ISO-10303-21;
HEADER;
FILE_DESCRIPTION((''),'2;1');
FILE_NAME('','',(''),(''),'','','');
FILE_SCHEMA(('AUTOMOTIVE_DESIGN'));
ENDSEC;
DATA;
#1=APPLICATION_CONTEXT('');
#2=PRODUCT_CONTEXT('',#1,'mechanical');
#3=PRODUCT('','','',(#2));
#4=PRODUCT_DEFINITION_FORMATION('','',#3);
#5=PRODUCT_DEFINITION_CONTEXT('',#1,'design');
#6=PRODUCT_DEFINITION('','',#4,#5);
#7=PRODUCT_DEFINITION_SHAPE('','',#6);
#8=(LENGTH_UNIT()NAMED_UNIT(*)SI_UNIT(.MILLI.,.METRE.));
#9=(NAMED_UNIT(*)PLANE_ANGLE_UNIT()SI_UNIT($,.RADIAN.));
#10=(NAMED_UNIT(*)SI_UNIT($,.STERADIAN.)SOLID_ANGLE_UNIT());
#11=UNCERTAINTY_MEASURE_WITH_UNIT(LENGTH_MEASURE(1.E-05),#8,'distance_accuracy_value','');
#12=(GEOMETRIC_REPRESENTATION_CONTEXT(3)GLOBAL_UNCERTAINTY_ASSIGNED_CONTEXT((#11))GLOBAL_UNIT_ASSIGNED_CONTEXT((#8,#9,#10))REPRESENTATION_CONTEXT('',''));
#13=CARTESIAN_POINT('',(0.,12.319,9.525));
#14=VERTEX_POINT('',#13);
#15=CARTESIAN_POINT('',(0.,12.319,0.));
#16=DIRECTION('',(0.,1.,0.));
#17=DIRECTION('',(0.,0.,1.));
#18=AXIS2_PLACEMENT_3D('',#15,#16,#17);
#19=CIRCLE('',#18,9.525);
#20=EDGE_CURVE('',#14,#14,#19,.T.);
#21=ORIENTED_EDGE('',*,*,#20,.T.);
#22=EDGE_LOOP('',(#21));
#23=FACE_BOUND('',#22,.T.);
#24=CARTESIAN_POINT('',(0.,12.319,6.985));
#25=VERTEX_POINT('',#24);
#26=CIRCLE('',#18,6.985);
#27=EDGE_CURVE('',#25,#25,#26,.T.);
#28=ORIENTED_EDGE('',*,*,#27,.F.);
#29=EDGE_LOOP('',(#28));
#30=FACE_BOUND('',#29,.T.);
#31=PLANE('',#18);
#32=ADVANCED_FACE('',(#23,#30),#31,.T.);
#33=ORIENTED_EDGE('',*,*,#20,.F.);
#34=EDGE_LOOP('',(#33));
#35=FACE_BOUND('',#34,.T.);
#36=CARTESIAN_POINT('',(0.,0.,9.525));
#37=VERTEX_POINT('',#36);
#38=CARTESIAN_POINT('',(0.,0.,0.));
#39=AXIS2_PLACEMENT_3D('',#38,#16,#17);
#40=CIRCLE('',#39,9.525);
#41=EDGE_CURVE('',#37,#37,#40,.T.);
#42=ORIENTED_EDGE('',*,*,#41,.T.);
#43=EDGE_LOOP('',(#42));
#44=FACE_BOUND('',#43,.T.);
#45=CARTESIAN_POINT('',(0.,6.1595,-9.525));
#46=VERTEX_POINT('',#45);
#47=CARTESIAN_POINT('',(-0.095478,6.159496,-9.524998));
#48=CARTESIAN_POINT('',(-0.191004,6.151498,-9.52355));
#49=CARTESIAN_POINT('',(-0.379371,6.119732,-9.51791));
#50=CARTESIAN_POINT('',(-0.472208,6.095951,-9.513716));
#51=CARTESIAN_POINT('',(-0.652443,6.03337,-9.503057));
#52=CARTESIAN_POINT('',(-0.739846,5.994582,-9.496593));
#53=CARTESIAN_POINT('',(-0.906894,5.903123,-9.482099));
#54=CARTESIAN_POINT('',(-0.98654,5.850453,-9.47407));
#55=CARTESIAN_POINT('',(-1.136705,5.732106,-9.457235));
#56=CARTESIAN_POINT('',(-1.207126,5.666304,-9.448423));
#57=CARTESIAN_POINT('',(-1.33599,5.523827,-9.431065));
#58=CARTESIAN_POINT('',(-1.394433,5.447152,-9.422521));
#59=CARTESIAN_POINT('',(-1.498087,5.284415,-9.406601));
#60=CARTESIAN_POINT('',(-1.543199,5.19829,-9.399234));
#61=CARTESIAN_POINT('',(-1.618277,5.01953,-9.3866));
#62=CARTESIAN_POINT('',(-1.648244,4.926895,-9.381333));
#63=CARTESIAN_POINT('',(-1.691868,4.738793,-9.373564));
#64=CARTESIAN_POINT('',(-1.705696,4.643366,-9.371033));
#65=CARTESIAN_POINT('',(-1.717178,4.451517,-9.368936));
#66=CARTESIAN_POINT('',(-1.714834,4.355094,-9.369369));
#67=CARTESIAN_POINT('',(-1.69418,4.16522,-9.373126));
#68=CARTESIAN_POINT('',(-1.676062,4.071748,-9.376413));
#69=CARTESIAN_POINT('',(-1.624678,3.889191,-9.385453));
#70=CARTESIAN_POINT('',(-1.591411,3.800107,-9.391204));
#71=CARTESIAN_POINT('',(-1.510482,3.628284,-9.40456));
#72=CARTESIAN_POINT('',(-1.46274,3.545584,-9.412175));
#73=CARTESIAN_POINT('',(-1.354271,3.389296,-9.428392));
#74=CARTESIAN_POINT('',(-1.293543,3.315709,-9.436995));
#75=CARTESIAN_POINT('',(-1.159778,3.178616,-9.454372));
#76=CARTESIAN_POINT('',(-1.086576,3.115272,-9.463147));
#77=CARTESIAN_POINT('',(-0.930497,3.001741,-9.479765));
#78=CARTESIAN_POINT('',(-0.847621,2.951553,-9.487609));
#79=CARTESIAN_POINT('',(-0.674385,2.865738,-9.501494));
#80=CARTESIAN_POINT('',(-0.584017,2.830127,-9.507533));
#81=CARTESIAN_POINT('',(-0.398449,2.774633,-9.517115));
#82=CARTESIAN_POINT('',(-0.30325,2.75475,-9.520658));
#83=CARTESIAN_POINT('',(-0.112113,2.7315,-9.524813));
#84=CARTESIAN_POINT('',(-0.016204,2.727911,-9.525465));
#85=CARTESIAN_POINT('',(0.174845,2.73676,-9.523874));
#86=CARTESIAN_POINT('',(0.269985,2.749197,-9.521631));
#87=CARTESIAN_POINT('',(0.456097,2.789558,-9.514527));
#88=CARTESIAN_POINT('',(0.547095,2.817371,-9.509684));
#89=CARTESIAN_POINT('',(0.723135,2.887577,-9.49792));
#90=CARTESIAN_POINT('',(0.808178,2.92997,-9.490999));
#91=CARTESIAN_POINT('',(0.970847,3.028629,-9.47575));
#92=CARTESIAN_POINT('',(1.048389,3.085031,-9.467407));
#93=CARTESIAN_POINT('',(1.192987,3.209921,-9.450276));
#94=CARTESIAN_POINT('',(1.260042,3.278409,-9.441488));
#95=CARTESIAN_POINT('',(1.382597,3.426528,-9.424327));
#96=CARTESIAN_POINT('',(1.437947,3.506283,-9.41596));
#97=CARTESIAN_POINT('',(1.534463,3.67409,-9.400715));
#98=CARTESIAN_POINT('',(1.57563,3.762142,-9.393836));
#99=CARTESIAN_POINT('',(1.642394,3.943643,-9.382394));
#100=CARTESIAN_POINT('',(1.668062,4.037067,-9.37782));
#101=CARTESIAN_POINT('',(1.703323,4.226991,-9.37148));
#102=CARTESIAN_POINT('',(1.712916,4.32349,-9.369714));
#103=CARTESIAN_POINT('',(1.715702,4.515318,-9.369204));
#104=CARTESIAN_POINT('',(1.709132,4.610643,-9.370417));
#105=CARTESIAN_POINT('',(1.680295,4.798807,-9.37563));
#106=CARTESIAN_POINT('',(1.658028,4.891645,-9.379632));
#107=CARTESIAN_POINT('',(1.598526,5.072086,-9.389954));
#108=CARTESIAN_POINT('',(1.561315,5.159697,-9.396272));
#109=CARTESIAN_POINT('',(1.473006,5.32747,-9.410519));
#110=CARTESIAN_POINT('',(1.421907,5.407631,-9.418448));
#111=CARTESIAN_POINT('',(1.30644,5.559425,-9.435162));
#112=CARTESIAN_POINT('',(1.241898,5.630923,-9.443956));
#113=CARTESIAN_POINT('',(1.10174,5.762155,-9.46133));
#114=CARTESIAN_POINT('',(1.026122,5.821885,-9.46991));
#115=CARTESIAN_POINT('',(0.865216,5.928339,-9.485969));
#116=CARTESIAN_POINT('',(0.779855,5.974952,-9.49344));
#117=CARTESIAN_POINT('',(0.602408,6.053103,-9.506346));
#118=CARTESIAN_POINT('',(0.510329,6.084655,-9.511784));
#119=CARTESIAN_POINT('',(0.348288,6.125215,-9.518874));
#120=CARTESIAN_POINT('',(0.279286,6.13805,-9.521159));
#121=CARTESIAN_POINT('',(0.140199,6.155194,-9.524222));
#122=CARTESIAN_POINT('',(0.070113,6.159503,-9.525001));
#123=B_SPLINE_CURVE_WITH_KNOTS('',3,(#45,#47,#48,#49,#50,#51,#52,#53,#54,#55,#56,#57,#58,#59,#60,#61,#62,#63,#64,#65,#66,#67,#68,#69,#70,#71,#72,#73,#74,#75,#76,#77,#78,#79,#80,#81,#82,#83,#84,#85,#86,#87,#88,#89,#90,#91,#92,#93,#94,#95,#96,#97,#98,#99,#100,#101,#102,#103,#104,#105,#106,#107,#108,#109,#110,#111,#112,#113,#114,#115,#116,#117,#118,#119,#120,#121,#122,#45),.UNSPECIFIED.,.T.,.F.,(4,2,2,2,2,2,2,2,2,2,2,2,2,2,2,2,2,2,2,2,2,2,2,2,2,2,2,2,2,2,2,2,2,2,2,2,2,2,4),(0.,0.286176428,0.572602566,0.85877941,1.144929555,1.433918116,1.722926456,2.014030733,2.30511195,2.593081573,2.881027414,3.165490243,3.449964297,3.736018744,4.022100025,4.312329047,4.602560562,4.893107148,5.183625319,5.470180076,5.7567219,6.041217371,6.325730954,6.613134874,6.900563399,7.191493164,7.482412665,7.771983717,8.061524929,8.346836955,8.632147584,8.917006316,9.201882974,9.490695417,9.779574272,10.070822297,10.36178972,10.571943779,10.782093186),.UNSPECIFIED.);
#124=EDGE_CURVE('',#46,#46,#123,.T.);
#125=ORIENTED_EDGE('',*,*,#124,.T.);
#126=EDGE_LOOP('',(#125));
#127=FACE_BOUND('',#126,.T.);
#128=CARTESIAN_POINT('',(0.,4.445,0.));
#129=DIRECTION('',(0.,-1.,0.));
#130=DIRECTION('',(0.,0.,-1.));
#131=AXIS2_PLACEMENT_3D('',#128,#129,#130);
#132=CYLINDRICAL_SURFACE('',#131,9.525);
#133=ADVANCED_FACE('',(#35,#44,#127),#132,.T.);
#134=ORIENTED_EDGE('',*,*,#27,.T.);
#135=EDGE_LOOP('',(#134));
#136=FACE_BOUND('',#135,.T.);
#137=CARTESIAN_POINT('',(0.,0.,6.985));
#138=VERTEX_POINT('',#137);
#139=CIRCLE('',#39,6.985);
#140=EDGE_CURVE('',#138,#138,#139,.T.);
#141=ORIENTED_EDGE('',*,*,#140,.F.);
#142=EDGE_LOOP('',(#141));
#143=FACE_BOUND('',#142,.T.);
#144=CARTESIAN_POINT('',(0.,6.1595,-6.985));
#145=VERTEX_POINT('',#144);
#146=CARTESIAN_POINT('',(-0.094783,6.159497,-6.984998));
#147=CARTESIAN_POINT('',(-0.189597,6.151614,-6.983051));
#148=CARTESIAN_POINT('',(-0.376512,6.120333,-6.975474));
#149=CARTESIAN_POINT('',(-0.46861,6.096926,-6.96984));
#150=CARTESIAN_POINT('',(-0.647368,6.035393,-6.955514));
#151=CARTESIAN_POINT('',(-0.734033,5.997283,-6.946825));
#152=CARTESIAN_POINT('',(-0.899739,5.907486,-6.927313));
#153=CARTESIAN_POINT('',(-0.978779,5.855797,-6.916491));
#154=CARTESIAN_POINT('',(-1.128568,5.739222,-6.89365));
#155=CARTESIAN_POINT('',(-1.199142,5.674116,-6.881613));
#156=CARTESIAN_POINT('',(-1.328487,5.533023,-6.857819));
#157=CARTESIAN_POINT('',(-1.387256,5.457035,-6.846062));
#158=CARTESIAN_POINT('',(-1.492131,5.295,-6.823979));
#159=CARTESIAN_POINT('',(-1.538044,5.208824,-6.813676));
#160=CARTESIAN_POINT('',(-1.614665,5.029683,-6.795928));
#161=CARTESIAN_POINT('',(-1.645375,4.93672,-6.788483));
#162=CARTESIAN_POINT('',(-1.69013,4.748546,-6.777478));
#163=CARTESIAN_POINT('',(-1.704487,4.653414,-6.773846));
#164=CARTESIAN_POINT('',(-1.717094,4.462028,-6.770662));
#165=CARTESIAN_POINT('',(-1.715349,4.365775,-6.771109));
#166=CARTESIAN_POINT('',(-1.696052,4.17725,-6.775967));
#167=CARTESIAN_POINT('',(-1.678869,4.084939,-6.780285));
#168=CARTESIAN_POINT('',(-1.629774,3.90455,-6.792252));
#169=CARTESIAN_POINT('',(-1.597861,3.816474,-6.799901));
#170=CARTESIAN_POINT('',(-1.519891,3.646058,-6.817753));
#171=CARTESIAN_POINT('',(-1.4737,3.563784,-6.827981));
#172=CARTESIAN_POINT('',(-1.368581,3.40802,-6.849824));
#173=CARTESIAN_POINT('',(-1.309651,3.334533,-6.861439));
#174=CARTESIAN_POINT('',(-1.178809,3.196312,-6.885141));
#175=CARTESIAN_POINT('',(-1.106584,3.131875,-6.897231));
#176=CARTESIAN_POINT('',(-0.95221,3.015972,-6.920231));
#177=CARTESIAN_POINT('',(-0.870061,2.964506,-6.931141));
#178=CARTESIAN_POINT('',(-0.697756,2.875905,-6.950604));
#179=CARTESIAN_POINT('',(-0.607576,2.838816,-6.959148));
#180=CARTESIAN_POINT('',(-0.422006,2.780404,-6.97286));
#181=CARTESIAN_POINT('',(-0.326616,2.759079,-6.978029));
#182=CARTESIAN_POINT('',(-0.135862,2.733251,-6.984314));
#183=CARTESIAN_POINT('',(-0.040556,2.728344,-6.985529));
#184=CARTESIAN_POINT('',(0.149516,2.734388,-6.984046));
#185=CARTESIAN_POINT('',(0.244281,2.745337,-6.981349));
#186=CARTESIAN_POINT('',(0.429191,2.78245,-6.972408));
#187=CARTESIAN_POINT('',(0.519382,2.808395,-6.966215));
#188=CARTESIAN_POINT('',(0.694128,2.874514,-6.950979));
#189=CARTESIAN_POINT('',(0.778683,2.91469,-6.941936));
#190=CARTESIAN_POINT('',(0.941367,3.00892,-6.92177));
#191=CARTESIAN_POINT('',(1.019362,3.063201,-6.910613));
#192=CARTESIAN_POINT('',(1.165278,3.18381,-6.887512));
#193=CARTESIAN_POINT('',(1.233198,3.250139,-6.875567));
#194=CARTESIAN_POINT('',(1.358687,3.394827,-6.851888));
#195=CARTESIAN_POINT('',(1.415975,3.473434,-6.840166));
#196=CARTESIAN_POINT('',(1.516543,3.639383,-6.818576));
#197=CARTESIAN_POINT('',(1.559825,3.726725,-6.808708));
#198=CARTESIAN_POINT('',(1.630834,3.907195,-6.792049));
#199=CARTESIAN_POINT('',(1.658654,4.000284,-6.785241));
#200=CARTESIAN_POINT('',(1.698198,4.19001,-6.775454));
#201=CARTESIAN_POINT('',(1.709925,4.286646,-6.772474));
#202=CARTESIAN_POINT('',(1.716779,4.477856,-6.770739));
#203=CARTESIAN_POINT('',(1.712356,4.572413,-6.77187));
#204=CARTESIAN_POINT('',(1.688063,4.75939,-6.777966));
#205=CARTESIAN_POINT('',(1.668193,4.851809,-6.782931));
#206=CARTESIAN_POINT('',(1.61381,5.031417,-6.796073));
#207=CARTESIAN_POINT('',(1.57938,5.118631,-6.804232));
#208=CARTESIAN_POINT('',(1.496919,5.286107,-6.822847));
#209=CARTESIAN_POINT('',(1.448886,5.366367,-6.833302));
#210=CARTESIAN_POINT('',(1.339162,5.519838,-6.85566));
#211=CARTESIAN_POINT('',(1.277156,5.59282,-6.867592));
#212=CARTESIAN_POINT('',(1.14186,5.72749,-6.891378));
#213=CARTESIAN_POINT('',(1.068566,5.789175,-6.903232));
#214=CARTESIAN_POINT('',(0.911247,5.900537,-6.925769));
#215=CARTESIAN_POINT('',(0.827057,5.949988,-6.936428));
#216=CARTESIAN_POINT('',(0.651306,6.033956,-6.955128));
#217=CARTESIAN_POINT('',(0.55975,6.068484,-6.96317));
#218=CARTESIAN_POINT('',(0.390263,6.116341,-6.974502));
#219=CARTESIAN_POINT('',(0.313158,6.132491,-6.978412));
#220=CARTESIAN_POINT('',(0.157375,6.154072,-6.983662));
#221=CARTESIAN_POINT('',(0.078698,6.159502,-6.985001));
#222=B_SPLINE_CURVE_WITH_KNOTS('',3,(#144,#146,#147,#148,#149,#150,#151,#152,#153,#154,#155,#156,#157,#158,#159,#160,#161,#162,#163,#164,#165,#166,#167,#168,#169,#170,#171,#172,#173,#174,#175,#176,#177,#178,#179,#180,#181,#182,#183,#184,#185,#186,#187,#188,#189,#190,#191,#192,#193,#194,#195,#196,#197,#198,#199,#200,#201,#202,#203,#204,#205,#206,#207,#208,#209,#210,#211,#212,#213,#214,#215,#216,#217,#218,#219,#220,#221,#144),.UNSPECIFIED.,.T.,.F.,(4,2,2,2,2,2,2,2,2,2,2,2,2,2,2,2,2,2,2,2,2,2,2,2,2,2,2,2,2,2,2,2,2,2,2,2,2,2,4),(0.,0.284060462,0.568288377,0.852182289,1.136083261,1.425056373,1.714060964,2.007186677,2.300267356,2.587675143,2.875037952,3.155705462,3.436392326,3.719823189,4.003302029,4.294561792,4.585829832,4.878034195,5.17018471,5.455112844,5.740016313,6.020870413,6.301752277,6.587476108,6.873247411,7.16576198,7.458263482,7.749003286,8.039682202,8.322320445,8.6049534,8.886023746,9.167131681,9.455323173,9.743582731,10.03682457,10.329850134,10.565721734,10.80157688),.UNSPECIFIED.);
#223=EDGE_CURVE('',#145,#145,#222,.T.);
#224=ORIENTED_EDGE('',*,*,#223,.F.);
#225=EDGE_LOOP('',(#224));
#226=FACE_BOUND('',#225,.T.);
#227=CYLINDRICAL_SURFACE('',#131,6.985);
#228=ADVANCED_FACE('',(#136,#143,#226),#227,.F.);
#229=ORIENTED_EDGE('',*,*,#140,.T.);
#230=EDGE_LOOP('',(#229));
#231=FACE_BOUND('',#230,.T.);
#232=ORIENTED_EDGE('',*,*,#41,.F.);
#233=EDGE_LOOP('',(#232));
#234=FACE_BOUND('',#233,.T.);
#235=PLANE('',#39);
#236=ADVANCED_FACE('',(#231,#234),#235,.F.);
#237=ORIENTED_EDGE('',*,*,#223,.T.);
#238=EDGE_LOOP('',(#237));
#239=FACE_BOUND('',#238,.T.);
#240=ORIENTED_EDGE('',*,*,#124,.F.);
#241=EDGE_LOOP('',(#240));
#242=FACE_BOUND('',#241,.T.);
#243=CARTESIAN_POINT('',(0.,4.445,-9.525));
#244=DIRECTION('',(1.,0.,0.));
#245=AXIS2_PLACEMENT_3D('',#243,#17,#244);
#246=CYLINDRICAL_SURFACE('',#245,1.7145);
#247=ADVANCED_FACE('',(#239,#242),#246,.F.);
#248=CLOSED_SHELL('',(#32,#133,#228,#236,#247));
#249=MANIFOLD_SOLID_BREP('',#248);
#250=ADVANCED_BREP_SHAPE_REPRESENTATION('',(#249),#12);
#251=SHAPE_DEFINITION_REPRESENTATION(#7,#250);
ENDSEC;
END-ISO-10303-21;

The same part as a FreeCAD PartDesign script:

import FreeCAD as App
import Part
import Sketcher
from FreeCAD import Vector
Q = App.Units.Quantity

doc = App.newDocument("Part")
body = doc.addObject("PartDesign::Body", "Body")

sketch1 = body.newObject("Sketcher::SketchObject", "Sketch")
sketch1.AttachmentSupport = (doc.getObject("XZ_Plane"), [""])
sketch1.MapMode = "FlatFace"
sketch1.addGeometry(Part.Circle(Vector(0, 0, 0), Vector(0, 0, 1), 9.525), False)
sketch1.addGeometry(Part.Circle(Vector(0, 0, 0), Vector(0, 0, 1), 6.985), False)
sketch1.addConstraint(Sketcher.Constraint("Coincident", 0, 3, -1, 1))
sketch1.addConstraint(Sketcher.Constraint("Coincident", 1, 3, -1, 1))
sketch1.addConstraint(Sketcher.Constraint("Diameter", 0, Q("0.75 in")))
sketch1.addConstraint(Sketcher.Constraint("Diameter", 1, Q("0.55 in")))
pad1 = body.newObject("PartDesign::Pad", "Pad")
pad1.Profile = sketch1
pad1.Length = Q("0.175 in")
pad1.Reversed = True

sketch2 = body.newObject("Sketcher::SketchObject", "Sketch001")
sketch2.AttachmentSupport = (doc.getObject("XZ_Plane"), [""])
sketch2.MapMode = "FlatFace"
sketch2.AttachmentOffset = App.Placement(Vector(0, 0, -0.175 * 25.4), App.Rotation())
sketch2.addGeometry(Part.Circle(Vector(0, 0, 0), Vector(0, 0, 1), 9.525), False)
sketch2.addGeometry(Part.Circle(Vector(0, 0, 0), Vector(0, 0, 1), 6.985), False)
sketch2.addConstraint(Sketcher.Constraint("Coincident", 0, 3, -1, 1))
sketch2.addConstraint(Sketcher.Constraint("Coincident", 1, 3, -1, 1))
sketch2.addConstraint(Sketcher.Constraint("Diameter", 0, Q("0.75 in")))
sketch2.addConstraint(Sketcher.Constraint("Diameter", 1, Q("0.55 in")))
pad2 = body.newObject("PartDesign::Pad", "Pad001")
pad2.Profile = sketch2
pad2.Length = Q("0.25 in")
pad2.Reversed = True

sketch3 = body.newObject("Sketcher::SketchObject", "Sketch002")
sketch3.AttachmentSupport = (doc.getObject("XY_Plane"), [""])
sketch3.MapMode = "FlatFace"
sketch3.addGeometry(Part.Circle(Vector(0, 4.445, 0), Vector(0, 0, 1), 1.7145), False)
sketch3.addConstraint(Sketcher.Constraint("PointOnObject", 0, 3, -2))
sketch3.addConstraint(Sketcher.Constraint("Diameter", 0, Q("0.135 in")))
sketch3.addConstraint(Sketcher.Constraint("DistanceY", -1, 1, 0, 3, Q("0.175 in")))
pocket1 = body.newObject("PartDesign::Pocket", "Pocket")
pocket1.Profile = sketch3
pocket1.Type = "ThroughAll"

sketch4 = body.newObject("Sketcher::SketchObject", "Sketch003")
sketch4.AttachmentSupport = (doc.getObject("XZ_Plane"), [""])
sketch4.MapMode = "FlatFace"
sketch4.AttachmentOffset = App.Placement(Vector(0, 0, -0.425 * 25.4), App.Rotation())
sketch4.addGeometry(Part.Circle(Vector(0, 0, 0), Vector(0, 0, 1), 9.525), False)
sketch4.addGeometry(Part.Circle(Vector(0, 0, 0), Vector(0, 0, 1), 6.985), False)
sketch4.addConstraint(Sketcher.Constraint("Coincident", 0, 3, -1, 1))
sketch4.addConstraint(Sketcher.Constraint("Coincident", 1, 3, -1, 1))
sketch4.addConstraint(Sketcher.Constraint("Diameter", 0, Q("0.75 in")))
sketch4.addConstraint(Sketcher.Constraint("Diameter", 1, Q("0.55 in")))
pad3 = body.newObject("PartDesign::Pad", "Pad002")
pad3.Profile = sketch4
pad3.Length = Q("0.06 in")
pad3.Reversed = True

doc.recompute()
